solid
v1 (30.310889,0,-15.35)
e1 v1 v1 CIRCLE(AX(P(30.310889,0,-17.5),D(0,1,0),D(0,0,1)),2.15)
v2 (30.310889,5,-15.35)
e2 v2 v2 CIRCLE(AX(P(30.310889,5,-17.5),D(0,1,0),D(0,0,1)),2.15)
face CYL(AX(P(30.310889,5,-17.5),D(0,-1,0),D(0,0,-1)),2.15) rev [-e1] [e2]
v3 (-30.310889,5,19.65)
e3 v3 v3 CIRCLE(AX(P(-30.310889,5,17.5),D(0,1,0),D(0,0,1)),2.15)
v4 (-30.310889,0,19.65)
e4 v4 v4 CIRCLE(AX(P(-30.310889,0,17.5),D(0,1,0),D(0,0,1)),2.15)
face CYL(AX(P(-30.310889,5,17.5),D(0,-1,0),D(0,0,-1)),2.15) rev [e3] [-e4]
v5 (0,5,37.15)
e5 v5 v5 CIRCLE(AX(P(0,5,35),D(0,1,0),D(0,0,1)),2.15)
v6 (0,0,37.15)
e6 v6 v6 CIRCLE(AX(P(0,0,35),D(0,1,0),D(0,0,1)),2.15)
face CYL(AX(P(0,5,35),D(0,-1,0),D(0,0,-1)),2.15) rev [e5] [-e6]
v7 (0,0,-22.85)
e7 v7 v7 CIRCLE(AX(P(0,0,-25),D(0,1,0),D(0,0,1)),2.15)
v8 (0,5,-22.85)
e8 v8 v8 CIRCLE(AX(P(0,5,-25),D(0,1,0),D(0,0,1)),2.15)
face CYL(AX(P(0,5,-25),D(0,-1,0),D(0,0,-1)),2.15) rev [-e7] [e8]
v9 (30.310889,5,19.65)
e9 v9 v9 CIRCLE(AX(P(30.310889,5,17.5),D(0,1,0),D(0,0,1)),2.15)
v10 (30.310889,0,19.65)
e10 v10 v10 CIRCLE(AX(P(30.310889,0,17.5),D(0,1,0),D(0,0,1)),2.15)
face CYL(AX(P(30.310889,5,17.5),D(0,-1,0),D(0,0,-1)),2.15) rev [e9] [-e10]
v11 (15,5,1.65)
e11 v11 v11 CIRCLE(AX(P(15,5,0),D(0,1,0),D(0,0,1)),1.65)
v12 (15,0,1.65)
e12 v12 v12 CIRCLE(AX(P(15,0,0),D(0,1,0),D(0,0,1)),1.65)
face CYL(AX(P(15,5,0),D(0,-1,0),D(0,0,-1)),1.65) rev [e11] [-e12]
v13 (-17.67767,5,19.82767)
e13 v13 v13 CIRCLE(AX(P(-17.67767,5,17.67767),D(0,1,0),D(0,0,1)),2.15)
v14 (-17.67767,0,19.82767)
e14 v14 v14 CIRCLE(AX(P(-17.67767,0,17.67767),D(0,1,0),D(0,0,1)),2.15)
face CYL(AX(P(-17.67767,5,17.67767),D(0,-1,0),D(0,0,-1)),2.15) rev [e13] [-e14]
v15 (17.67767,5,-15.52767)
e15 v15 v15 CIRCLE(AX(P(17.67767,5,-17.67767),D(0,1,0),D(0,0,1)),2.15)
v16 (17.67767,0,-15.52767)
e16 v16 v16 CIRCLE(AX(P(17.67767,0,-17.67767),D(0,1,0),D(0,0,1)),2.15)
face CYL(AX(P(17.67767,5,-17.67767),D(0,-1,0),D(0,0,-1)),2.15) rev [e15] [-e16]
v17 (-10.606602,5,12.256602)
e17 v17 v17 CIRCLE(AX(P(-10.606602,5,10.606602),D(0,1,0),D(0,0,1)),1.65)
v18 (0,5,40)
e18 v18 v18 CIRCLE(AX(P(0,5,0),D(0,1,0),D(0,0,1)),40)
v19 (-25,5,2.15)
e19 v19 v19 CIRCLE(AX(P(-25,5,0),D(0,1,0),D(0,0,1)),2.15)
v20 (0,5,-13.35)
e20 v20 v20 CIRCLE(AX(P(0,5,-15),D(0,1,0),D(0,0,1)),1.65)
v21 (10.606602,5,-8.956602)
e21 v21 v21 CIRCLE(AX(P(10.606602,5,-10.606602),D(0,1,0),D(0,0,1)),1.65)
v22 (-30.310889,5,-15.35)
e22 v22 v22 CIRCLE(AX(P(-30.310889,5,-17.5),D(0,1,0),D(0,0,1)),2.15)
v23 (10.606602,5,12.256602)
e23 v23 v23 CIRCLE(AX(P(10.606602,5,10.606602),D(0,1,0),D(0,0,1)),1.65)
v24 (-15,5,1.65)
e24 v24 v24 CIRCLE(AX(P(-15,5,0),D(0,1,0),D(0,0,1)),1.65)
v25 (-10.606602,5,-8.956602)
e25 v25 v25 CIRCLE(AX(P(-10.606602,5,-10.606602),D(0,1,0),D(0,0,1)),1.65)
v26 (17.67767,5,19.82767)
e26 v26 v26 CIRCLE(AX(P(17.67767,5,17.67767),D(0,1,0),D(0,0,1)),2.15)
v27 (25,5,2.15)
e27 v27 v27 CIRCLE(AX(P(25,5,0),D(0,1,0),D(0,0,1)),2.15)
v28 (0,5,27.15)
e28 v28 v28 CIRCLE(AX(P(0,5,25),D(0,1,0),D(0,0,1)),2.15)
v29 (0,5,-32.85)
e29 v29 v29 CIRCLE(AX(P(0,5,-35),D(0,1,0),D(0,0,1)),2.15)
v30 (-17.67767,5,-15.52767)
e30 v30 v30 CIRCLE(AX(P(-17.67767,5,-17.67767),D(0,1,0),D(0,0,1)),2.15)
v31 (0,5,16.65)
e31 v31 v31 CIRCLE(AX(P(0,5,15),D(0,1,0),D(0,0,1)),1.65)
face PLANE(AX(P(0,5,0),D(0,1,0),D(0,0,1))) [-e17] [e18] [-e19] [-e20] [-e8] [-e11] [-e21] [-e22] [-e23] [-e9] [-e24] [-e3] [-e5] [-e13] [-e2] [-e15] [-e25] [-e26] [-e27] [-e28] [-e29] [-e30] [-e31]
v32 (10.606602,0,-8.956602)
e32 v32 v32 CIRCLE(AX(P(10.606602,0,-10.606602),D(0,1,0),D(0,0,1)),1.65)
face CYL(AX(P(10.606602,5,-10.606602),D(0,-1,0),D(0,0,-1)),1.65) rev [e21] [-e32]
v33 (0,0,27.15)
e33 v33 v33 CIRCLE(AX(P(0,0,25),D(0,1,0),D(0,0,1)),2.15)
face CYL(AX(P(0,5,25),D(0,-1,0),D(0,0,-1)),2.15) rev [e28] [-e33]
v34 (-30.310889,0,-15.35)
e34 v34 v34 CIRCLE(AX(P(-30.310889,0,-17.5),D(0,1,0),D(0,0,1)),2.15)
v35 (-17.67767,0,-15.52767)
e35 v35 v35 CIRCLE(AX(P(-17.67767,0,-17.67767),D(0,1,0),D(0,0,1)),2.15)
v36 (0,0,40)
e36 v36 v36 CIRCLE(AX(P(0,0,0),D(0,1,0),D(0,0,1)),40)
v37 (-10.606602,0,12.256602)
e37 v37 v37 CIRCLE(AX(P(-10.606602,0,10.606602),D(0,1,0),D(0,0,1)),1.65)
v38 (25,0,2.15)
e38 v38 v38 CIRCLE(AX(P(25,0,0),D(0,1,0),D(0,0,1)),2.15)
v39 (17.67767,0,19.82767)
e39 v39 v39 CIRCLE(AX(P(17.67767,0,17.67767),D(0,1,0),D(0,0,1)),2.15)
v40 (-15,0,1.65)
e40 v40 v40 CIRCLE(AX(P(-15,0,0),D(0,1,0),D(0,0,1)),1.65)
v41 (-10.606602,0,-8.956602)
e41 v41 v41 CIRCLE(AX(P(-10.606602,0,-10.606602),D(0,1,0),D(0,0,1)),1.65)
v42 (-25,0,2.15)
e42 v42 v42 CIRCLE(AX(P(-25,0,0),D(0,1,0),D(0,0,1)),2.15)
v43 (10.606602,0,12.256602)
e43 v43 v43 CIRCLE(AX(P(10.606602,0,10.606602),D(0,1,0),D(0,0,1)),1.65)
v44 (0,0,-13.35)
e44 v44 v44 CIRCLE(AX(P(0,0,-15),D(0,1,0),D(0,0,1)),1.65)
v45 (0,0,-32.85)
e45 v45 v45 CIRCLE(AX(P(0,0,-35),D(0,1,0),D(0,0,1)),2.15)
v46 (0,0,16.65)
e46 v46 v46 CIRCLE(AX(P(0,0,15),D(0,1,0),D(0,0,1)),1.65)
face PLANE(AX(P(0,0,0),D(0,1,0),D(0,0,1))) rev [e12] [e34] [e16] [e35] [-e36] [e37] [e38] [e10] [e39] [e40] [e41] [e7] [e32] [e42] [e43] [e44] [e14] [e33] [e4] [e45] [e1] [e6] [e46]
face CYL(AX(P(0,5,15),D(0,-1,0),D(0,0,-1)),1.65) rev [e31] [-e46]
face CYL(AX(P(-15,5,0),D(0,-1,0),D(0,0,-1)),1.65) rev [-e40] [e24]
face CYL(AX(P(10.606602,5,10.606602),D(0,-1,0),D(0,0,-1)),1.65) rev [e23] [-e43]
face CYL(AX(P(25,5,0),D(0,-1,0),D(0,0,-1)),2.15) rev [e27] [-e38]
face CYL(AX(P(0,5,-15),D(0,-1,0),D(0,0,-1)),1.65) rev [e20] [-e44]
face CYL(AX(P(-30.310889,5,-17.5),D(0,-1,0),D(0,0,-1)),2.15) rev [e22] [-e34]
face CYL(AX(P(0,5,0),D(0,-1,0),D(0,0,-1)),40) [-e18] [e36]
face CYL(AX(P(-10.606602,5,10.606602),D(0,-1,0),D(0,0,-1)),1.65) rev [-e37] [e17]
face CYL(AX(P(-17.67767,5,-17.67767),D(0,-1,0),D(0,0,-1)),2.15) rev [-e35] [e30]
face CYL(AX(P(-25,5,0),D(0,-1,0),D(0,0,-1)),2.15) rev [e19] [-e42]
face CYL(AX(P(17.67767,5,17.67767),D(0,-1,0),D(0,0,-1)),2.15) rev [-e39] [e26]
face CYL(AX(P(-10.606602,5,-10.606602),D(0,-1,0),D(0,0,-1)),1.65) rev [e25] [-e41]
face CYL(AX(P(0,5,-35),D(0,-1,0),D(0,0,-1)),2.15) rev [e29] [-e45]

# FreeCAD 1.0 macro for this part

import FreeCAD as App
import Part
import Sketcher

doc = App.newDocument("Part")
params = doc.addObject("Spreadsheet::Sheet", "Params")
for row, (alias, value) in enumerate([
    ("sketch1_diameter", "80 mm"),
    ("sketch1_diameter2", "4.3 mm"),
    ("sketch1_diameter3", "3.3 mm"),
    ("pad1_length", "5 mm"),
], start=1):
    params.set(f"A{row}", alias)
    params.set(f"B{row}", "=" + value)
    params.setAlias(f"B{row}", alias)

body = doc.addObject("PartDesign::Body", "Body")

# Sketch on XZ plane
sketch1 = body.newObject("Sketcher::SketchObject", "Sketch")
sketch1.AttachmentSupport = (doc.getObject("XZ_Plane"), [""])
sketch1.MapMode = "FlatFace"
sketch1.addGeometry(Part.Circle(App.Vector(0, 0, 0), App.Vector(0, 0, 1), 40), False)
sketch1.addGeometry(Part.Circle(App.Vector(-30.310889, -17.5, 0), App.Vector(0, 0, 1), 2.15), False)
sketch1.addGeometry(Part.Circle(App.Vector(-17.67767, -17.67767, 0), App.Vector(0, 0, 1), 2.15), False)
sketch1.addGeometry(Part.Circle(App.Vector(0, -35, 0), App.Vector(0, 0, 1), 2.15), False)
sketch1.addGeometry(Part.Circle(App.Vector(0, -25, 0), App.Vector(0, 0, 1), 2.15), False)
sketch1.addGeometry(Part.Circle(App.Vector(-10.606602, -10.606602, 0), App.Vector(0, 0, 1), 1.65), False)
sketch1.addGeometry(Part.Circle(App.Vector(0, -15, 0), App.Vector(0, 0, 1), 1.65), False)
sketch1.addGeometry(Part.Circle(App.Vector(-25, 0, 0), App.Vector(0, 0, 1), 2.15), False)
sketch1.addGeometry(Part.Circle(App.Vector(-30.310889, 17.5, 0), App.Vector(0, 0, 1), 2.15), False)
sketch1.addGeometry(Part.Circle(App.Vector(-17.67767, 17.67767, 0), App.Vector(0, 0, 1), 2.15), False)
sketch1.addGeometry(Part.Circle(App.Vector(-15, 0, 0), App.Vector(0, 0, 1), 1.65), False)
sketch1.addGeometry(Part.Circle(App.Vector(-10.606602, 10.606602, 0), App.Vector(0, 0, 1), 1.65), False)
sketch1.addGeometry(Part.Circle(App.Vector(10.606602, -10.606602, 0), App.Vector(0, 0, 1), 1.65), False)
sketch1.addGeometry(Part.Circle(App.Vector(17.67767, -17.67767, 0), App.Vector(0, 0, 1), 2.15), False)
sketch1.addGeometry(Part.Circle(App.Vector(30.310889, -17.5, 0), App.Vector(0, 0, 1), 2.15), False)
sketch1.addGeometry(Part.Circle(App.Vector(25, 0, 0), App.Vector(0, 0, 1), 2.15), False)
sketch1.addGeometry(Part.Circle(App.Vector(0, 15, 0), App.Vector(0, 0, 1), 1.65), False)
sketch1.addGeometry(Part.Circle(App.Vector(15, 0, 0), App.Vector(0, 0, 1), 1.65), False)
sketch1.addGeometry(Part.Circle(App.Vector(10.606602, 10.606602, 0), App.Vector(0, 0, 1), 1.65), False)
sketch1.addGeometry(Part.Circle(App.Vector(0, 25, 0), App.Vector(0, 0, 1), 2.15), False)
sketch1.addGeometry(Part.Circle(App.Vector(0, 35, 0), App.Vector(0, 0, 1), 2.15), False)
sketch1.addGeometry(Part.Circle(App.Vector(17.67767, 17.67767, 0), App.Vector(0, 0, 1), 2.15), False)
sketch1.addGeometry(Part.Circle(App.Vector(30.310889, 17.5, 0), App.Vector(0, 0, 1), 2.15), False)
sketch1.addConstraint(Sketcher.Constraint("Coincident", 0, 3, -1, 1))
sketch1.addConstraint(Sketcher.Constraint("Equal", 1, 2))
sketch1.addConstraint(Sketcher.Constraint("Equal", 2, 3))
sketch1.addConstraint(Sketcher.Constraint("Equal", 3, 4))
sketch1.addConstraint(Sketcher.Constraint("Equal", 5, 6))
sketch1.addConstraint(Sketcher.Constraint("Equal", 4, 7))
sketch1.addConstraint(Sketcher.Constraint("Equal", 7, 8))
sketch1.addConstraint(Sketcher.Constraint("Equal", 8, 9))
sketch1.addConstraint(Sketcher.Constraint("Equal", 6, 10))
sketch1.addConstraint(Sketcher.Constraint("Equal", 10, 11))
sketch1.addConstraint(Sketcher.Constraint("Equal", 11, 12))
sketch1.addConstraint(Sketcher.Constraint("Equal", 9, 13))
sketch1.addConstraint(Sketcher.Constraint("Equal", 13, 14))
sketch1.addConstraint(Sketcher.Constraint("Equal", 14, 15))
sketch1.addConstraint(Sketcher.Constraint("Equal", 12, 16))
sketch1.addConstraint(Sketcher.Constraint("Equal", 16, 17))
sketch1.addConstraint(Sketcher.Constraint("Equal", 17, 18))
sketch1.addConstraint(Sketcher.Constraint("Equal", 15, 19))
sketch1.addConstraint(Sketcher.Constraint("Equal", 19, 20))
sketch1.addConstraint(Sketcher.Constraint("Equal", 20, 21))
sketch1.addConstraint(Sketcher.Constraint("Equal", 21, 22))
sketch1.addConstraint(Sketcher.Constraint("Symmetric", 11, 3, 12, 3, -1, 1))
sketch1.addConstraint(Sketcher.Constraint("Symmetric", 9, 3, 13, 3, -1, 1))
sketch1.addConstraint(Sketcher.Constraint("Symmetric", 8, 3, 14, 3, -1, 1))
sketch1.addConstraint(Sketcher.Constraint("Symmetric", 7, 3, 15, 3, -1, 1))
sketch1.addConstraint(Sketcher.Constraint("Symmetric", 6, 3, 16, 3, -1, 1))
sketch1.addConstraint(Sketcher.Constraint("Symmetric", 10, 3, 17, 3, -1, 1))
sketch1.addConstraint(Sketcher.Constraint("Symmetric", 5, 3, 18, 3, -1, 1))
sketch1.addConstraint(Sketcher.Constraint("Symmetric", 4, 3, 19, 3, -1, 1))
sketch1.addConstraint(Sketcher.Constraint("Symmetric", 3, 3, 20, 3, -1, 1))
sketch1.addConstraint(Sketcher.Constraint("Symmetric", 2, 3, 21, 3, -1, 1))
sketch1.addConstraint(Sketcher.Constraint("Symmetric", 1, 3, 22, 3, -1, 1))
sketch1.addConstraint(Sketcher.Constraint("Symmetric", 5, 3, 12, 3, -2))
sketch1.addConstraint(Sketcher.Constraint("Symmetric", 2, 3, 13, 3, -2))
sketch1.addConstraint(Sketcher.Constraint("Symmetric", 1, 3, 14, 3, -2))
sketch1.addConstraint(Sketcher.Constraint("PointOnObject", 3, 3, -2))
sketch1.addConstraint(Sketcher.Constraint("PointOnObject", 4, 3, -2))
sketch1.addConstraint(Sketcher.Constraint("PointOnObject", 6, 3, -2))
sketch1.addConstraint(Sketcher.Constraint("PointOnObject", 7, 3, -1))
sketch1.addConstraint(Sketcher.Constraint("PointOnObject", 10, 3, -1))
sketch1.addConstraint(Sketcher.Constraint("Diameter", 0, 80.0))
sketch1.addConstraint(Sketcher.Constraint("Diameter", 1, 4.3))
sketch1.addConstraint(Sketcher.Constraint("Diameter", 5, 3.3))
sketch1.addConstraint(Sketcher.Constraint("DistanceY", 3, 3, -1, 1, 35.0))
sketch1.addConstraint(Sketcher.Constraint("DistanceY", 4, 3, -1, 1, 25.0))
sketch1.addConstraint(Sketcher.Constraint("DistanceY", 6, 3, -1, 1, 15.0))
sketch1.addConstraint(Sketcher.Constraint("DistanceX", 7, 3, -1, 1, 25.0))
sketch1.addConstraint(Sketcher.Constraint("DistanceX", 10, 3, -1, 1, 15.0))
sketch1.addConstraint(Sketcher.Constraint("DistanceY", 1, 3, 8, 3, 35.0))
sketch1.addConstraint(Sketcher.Constraint("DistanceX", 5, 3, -1, 1, 10.606602))
sketch1.addConstraint(Sketcher.Constraint("DistanceY", 5, 3, -1, 1, 10.606602))
sketch1.addConstraint(Sketcher.Constraint("DistanceX", 1, 3, -1, 1, 30.310889))
sketch1.addConstraint(Sketcher.Constraint("DistanceX", 2, 3, -1, 1, 17.67767))
sketch1.addConstraint(Sketcher.Constraint("DistanceY", 2, 3, -1, 1, 17.67767))
sketch1.setExpression("Constraints[40]", "Params.sketch1_diameter")
sketch1.setExpression("Constraints[41]", "Params.sketch1_diameter2")
sketch1.setExpression("Constraints[42]", "Params.sketch1_diameter3")
pad1 = body.newObject("PartDesign::Pad", "Pad")
pad1.Profile = sketch1
pad1.setExpression("Length", "Params.pad1_length")
pad1.Reversed = True

doc.recompute()
